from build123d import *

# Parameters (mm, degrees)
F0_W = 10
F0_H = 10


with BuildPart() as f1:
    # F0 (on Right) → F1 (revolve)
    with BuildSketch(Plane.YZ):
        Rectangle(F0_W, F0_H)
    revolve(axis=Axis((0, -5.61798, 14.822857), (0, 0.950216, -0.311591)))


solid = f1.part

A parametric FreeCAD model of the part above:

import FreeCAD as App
import Part
import Sketcher
from FreeCAD import Vector


def add_polygon(sketch, points):
    """Adds a closed chain of lines whose ends are joined by coincident constraints."""
    first, n = sketch.GeometryCount, len(points)
    for a, b in zip(points, points[1:] + points[:1]):
        sketch.addGeometry(Part.LineSegment(App.Vector(*a, 0), App.Vector(*b, 0)), False)
    for i in range(n):
        sketch.addConstraint(Sketcher.Constraint("Coincident", first + i, 2, first + (i + 1) % n, 1))

doc = App.newDocument("Part")
body = doc.addObject("PartDesign::Body", "Body")

sketch1 = body.newObject("Sketcher::SketchObject", "Sketch")
sketch1.AttachmentSupport = (doc.getObject("YZ_Plane"), [""])
sketch1.MapMode = "FlatFace"
add_polygon(sketch1, [(-5, 5), (-5, -5), (5, -5), (5, 5)])
sketch1.addGeometry(Part.LineSegment(Vector(-2.151658, 13.686195, 0), Vector(9.838241, 9.754515, 0)), True)
sketch1.addConstraint([
    Sketcher.Constraint("Vertical", 0),
    Sketcher.Constraint("Horizontal", 1),
    Sketcher.Constraint("Vertical", 2),
    Sketcher.Constraint("Horizontal", 3),
    Sketcher.Constraint("Symmetric", 0, 2, 2, 2, -1, 1),
    Sketcher.Constraint("Equal", 3, 0),
    Sketcher.Constraint("DistanceX", 1, 1, 1, 2, 10.0),
    Sketcher.Constraint("DistanceX", 4, 1, 4, 2, 11.989899),
    Sketcher.Constraint("DistanceX", 4, 1, -1, 1, 2.151658),
    Sketcher.Constraint("DistanceY", 4, 2, 4, 1, 3.931679),
    Sketcher.Constraint("DistanceY", -1, 1, 4, 1, 13.686195),
])
revolution = body.newObject("PartDesign::Revolution", "Revolution")
revolution.Profile = sketch1
revolution.ReferenceAxis = (sketch1, ["Axis0"])
revolution.Angle = 360

doc.recompute()
